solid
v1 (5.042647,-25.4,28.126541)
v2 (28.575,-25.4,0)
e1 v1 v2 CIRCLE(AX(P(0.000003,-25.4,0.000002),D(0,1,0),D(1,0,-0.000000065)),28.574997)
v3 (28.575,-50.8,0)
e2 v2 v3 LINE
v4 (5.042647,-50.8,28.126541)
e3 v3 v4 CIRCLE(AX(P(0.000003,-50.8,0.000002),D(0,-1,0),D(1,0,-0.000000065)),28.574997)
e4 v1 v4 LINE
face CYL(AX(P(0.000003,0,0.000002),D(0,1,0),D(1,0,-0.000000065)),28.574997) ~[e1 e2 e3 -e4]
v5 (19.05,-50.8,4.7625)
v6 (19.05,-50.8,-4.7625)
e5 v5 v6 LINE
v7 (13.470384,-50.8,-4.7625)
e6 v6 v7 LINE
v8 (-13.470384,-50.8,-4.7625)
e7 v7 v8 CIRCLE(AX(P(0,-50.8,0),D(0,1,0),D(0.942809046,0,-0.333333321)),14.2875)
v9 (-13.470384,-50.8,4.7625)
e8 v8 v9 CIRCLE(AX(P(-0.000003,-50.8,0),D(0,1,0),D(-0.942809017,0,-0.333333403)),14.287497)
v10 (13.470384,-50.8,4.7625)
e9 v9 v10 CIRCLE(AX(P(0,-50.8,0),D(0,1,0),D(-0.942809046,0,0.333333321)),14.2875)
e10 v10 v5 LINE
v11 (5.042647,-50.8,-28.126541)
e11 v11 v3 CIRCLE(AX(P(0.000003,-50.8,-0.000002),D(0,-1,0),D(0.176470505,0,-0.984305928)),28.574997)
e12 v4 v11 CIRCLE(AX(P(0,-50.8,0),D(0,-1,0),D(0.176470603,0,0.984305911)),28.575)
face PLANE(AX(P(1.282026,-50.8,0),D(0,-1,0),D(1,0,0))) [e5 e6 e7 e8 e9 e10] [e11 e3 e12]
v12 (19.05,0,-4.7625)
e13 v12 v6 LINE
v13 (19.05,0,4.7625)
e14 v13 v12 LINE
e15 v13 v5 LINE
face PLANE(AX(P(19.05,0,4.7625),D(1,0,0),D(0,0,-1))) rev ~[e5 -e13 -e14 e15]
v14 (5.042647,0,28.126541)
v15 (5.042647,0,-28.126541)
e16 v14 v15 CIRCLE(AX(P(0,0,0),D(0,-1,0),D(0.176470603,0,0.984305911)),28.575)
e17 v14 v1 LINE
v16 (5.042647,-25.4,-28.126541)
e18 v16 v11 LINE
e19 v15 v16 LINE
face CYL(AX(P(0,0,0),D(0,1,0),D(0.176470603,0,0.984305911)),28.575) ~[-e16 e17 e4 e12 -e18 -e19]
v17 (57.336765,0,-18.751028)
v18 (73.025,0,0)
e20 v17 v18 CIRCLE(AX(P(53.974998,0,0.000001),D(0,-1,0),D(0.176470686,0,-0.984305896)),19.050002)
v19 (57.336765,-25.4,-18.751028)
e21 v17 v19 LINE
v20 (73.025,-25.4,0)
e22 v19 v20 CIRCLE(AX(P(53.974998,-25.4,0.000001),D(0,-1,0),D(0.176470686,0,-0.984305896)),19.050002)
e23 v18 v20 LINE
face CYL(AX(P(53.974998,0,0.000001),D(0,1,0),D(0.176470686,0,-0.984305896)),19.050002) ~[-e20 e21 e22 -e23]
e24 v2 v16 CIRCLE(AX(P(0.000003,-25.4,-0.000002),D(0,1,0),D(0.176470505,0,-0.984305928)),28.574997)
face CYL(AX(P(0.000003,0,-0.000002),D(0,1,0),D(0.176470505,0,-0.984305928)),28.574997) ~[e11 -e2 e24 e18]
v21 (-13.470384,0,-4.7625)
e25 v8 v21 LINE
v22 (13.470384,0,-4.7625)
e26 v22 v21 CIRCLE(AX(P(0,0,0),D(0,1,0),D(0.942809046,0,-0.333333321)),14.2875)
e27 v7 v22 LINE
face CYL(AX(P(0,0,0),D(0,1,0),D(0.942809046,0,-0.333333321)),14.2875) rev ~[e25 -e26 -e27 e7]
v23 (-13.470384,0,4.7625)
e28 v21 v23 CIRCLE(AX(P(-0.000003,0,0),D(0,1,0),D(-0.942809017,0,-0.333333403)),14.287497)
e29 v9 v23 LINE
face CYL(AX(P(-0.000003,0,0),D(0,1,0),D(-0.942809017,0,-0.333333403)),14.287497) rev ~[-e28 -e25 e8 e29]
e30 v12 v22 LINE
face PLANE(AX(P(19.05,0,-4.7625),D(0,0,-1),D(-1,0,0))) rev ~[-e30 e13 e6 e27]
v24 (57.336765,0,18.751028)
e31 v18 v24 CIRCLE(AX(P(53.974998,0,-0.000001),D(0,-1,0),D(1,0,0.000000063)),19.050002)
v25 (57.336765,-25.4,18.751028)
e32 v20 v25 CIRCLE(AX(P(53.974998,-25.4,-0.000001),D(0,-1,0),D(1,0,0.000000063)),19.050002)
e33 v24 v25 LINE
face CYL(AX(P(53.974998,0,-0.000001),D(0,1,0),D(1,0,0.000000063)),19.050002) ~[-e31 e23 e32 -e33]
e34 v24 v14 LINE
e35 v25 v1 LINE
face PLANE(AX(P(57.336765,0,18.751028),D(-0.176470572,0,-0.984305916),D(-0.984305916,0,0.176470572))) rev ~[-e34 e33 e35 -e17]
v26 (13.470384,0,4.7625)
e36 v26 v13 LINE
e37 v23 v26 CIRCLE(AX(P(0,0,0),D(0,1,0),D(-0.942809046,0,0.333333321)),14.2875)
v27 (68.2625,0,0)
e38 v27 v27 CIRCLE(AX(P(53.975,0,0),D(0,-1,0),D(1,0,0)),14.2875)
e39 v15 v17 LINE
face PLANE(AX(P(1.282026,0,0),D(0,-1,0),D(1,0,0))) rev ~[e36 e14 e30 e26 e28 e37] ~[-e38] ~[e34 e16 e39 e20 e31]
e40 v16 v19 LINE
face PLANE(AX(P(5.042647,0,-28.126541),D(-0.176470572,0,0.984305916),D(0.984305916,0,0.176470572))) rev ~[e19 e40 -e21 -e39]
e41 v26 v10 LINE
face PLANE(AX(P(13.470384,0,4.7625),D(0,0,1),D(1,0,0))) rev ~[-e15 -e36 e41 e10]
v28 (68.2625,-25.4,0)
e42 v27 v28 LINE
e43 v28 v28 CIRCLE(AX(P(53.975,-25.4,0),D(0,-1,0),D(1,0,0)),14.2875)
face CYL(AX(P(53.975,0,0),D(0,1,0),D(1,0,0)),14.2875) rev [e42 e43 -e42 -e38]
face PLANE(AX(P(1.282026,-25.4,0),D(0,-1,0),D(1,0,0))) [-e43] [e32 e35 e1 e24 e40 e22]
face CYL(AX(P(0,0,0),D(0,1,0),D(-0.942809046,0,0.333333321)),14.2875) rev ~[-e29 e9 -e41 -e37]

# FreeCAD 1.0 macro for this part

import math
import FreeCAD as App
import Part
import Sketcher

V = App.Vector
Q = App.Units.Quantity

doc = App.newDocument("Part")
body = doc.addObject("PartDesign::Body", "Body")

# Sketch on XZ plane
sketch1 = doc.addObject("Sketcher::SketchObject", "Sketch")
body.addObject(sketch1)
sketch1.AttachmentSupport = (doc.XZ_Plane, [""])
sketch1.MapMode = "FlatFace"
sketch1.addGeometry([
    Part.ArcOfCircle(Part.Circle(V(0, 0, 0), V(0, 0, 1), 29), math.radians(80), math.radians(280)),  # 0
    Part.LineSegment(V(5, -28, 0), V(57, -19, 0)),  # 1
    Part.ArcOfCircle(Part.Circle(V(54, 0, 0), V(0, 0, 1), 19), math.radians(-80), math.radians(0)),  # 2
    Part.ArcOfCircle(Part.Circle(V(54, 0, 0), V(0, 0, 1), 19), math.radians(0), math.radians(80)),  # 3
    Part.LineSegment(V(57, 19, 0), V(5, 28, 0)),  # 4
    Part.ArcOfCircle(Part.Circle(V(0, 0, 0), V(0, 0, 1), 14), math.radians(19), math.radians(161)),  # 5
    Part.LineSegment(V(13, 5, 0), V(19, 5, 0)),  # 6
    Part.LineSegment(V(19, 5, 0), V(19, -5, 0)),  # 7
    Part.LineSegment(V(19, -5, 0), V(13, -5, 0)),  # 8
    Part.ArcOfCircle(Part.Circle(V(0, 0, 0), V(0, 0, 1), 14), math.radians(-161), math.radians(-19)),  # 9
    Part.ArcOfCircle(Part.Circle(V(0, 0, 0), V(0, 0, 1), 14), math.radians(161), math.radians(199)),  # 10
    Part.Circle(V(54, 0, 0), V(0, 0, 1), 14),  # 11
], False)
sketch1.addConstraint([
    Sketcher.Constraint("Tangent", 0, 2, 1, 1),
    Sketcher.Constraint("Tangent", 1, 2, 2, 1),
    Sketcher.Constraint("Tangent", 2, 2, 3, 1),
    Sketcher.Constraint("Tangent", 3, 2, 4, 1),
    Sketcher.Constraint("Tangent", 4, 2, 0, 1),
    Sketcher.Constraint("Coincident", 5, 1, 6, 1),
    Sketcher.Constraint("Coincident", 6, 2, 7, 1),
    Sketcher.Constraint("Coincident", 7, 2, 8, 1),
    Sketcher.Constraint("Coincident", 8, 2, 9, 2),
    Sketcher.Constraint("Tangent", 9, 1, 10, 2),
    Sketcher.Constraint("Tangent", 10, 1, 5, 2),
    Sketcher.Constraint("Horizontal", 6),
    Sketcher.Constraint("Vertical", 7),
    Sketcher.Constraint("Horizontal", 8),
    Sketcher.Constraint("Coincident", 0, 3, -1, 1),
    Sketcher.Constraint("Coincident", 5, 3, -1, 1),
    Sketcher.Constraint("Coincident", 9, 3, -1, 1),
    Sketcher.Constraint("Coincident", 11, 3, 2, 3),
    Sketcher.Constraint("Equal", 2, 3),
    Sketcher.Constraint("Equal", 9, 11),
    Sketcher.Constraint("PointOnObject", 2, 3, -1),
    Sketcher.Constraint("PointOnObject", 2, 2, -1),
    Sketcher.Constraint("Horizontal", 8, 2, 9, 1),
    Sketcher.Constraint("Horizontal", 6, 2, 10, 1),
    Sketcher.Constraint("Vertical", 5, 1, 8, 2),
    Sketcher.Constraint("Radius", 2, Q("0.7500001 in")),
    Sketcher.Constraint("Diameter", 11, Q("1.125 in")),
    Sketcher.Constraint("Radius", 0, Q("1.125 in")),
    Sketcher.Constraint("DistanceY", 7, 2, 7, 1, Q("0.375 in")),
    Sketcher.Constraint("DistanceX", -1, 1, 6, 2, Q("0.75 in")),
    Sketcher.Constraint("DistanceX", -1, 1, 2, 3, Q("2.1249999 in")),
])
pad1 = doc.addObject("PartDesign::Pad", "Pad")
body.addObject(pad1)
pad1.Profile = sketch1
pad1.Length = Q("1 in")

# Sketch on XZ plane
sketch2 = doc.addObject("Sketcher::SketchObject", "Sketch001")
body.addObject(sketch2)
sketch2.AttachmentSupport = (doc.XZ_Plane, [""])
sketch2.MapMode = "FlatFace"
sketch2.addGeometry([
    Part.ArcOfCircle(Part.Circle(V(0, 0, 0), V(0, 0, 1), 29), math.radians(-80), math.radians(0)),  # 0
    Part.ArcOfCircle(Part.Circle(V(0, 0, 0), V(0, 0, 1), 29), math.radians(0), math.radians(80)),  # 1
    Part.ArcOfCircle(Part.Circle(V(0, 0, 0), V(0, 0, 1), 29), math.radians(80), math.radians(280)),  # 2
    Part.ArcOfCircle(Part.Circle(V(0, 0, 0), V(0, 0, 1), 14), math.radians(-161), math.radians(-19)),  # 3
    Part.ArcOfCircle(Part.Circle(V(0, 0, 0), V(0, 0, 1), 14), math.radians(161), math.radians(199)),  # 4
    Part.ArcOfCircle(Part.Circle(V(0, 0, 0), V(0, 0, 1), 14), math.radians(19), math.radians(161)),  # 5
    Part.LineSegment(V(13, 5, 0), V(19, 5, 0)),  # 6
    Part.LineSegment(V(19, 5, 0), V(19, -5, 0)),  # 7
    Part.LineSegment(V(19, -5, 0), V(13, -5, 0)),  # 8
], False)
sketch2.addConstraint([
    Sketcher.Constraint("Tangent", 0, 2, 1, 1),
    Sketcher.Constraint("Tangent", 1, 2, 2, 1),
    Sketcher.Constraint("Tangent", 2, 2, 0, 1),
    Sketcher.Constraint("Tangent", 3, 1, 4, 2),
    Sketcher.Constraint("Tangent", 4, 1, 5, 2),
    Sketcher.Constraint("Coincident", 5, 1, 6, 1),
    Sketcher.Constraint("Coincident", 6, 2, 7, 1),
    Sketcher.Constraint("Coincident", 7, 2, 8, 1),
    Sketcher.Constraint("Coincident", 8, 2, 3, 2),
    Sketcher.Constraint("Horizontal", 6),
    Sketcher.Constraint("Vertical", 7),
    Sketcher.Constraint("Horizontal", 8),
    Sketcher.Constraint("Coincident", 0, 3, -1, 1),
    Sketcher.Constraint("Coincident", 3, 3, -1, 1),
    Sketcher.Constraint("Coincident", 5, 3, -1, 1),
    Sketcher.Constraint("PointOnObject", 0, 2, -1),
    Sketcher.Constraint("Horizontal", 4, 1, 5, 1),
    Sketcher.Constraint("Horizontal", 3, 1, 7, 2),
    Sketcher.Constraint("Vertical", 1, 2, 2, 2),
    Sketcher.Constraint("Vertical", 3, 1, 4, 1),
    Sketcher.Constraint("Radius", 0, Q("1.1249999 in")),
    Sketcher.Constraint("Radius", 3, Q("0.5625 in")),
    Sketcher.Constraint("DistanceY", 7, 2, 7, 1, Q("0.375 in")),
    Sketcher.Constraint("DistanceX", -1, 1, 6, 2, Q("0.75 in")),
    Sketcher.Constraint("DistanceY", -1, 1, 1, 2, 28.126541),
])
pad2 = doc.addObject("PartDesign::Pad", "Pad001")
body.addObject(pad2)
pad2.Profile = sketch2
pad2.Length = Q("2 in")

doc.recompute()
